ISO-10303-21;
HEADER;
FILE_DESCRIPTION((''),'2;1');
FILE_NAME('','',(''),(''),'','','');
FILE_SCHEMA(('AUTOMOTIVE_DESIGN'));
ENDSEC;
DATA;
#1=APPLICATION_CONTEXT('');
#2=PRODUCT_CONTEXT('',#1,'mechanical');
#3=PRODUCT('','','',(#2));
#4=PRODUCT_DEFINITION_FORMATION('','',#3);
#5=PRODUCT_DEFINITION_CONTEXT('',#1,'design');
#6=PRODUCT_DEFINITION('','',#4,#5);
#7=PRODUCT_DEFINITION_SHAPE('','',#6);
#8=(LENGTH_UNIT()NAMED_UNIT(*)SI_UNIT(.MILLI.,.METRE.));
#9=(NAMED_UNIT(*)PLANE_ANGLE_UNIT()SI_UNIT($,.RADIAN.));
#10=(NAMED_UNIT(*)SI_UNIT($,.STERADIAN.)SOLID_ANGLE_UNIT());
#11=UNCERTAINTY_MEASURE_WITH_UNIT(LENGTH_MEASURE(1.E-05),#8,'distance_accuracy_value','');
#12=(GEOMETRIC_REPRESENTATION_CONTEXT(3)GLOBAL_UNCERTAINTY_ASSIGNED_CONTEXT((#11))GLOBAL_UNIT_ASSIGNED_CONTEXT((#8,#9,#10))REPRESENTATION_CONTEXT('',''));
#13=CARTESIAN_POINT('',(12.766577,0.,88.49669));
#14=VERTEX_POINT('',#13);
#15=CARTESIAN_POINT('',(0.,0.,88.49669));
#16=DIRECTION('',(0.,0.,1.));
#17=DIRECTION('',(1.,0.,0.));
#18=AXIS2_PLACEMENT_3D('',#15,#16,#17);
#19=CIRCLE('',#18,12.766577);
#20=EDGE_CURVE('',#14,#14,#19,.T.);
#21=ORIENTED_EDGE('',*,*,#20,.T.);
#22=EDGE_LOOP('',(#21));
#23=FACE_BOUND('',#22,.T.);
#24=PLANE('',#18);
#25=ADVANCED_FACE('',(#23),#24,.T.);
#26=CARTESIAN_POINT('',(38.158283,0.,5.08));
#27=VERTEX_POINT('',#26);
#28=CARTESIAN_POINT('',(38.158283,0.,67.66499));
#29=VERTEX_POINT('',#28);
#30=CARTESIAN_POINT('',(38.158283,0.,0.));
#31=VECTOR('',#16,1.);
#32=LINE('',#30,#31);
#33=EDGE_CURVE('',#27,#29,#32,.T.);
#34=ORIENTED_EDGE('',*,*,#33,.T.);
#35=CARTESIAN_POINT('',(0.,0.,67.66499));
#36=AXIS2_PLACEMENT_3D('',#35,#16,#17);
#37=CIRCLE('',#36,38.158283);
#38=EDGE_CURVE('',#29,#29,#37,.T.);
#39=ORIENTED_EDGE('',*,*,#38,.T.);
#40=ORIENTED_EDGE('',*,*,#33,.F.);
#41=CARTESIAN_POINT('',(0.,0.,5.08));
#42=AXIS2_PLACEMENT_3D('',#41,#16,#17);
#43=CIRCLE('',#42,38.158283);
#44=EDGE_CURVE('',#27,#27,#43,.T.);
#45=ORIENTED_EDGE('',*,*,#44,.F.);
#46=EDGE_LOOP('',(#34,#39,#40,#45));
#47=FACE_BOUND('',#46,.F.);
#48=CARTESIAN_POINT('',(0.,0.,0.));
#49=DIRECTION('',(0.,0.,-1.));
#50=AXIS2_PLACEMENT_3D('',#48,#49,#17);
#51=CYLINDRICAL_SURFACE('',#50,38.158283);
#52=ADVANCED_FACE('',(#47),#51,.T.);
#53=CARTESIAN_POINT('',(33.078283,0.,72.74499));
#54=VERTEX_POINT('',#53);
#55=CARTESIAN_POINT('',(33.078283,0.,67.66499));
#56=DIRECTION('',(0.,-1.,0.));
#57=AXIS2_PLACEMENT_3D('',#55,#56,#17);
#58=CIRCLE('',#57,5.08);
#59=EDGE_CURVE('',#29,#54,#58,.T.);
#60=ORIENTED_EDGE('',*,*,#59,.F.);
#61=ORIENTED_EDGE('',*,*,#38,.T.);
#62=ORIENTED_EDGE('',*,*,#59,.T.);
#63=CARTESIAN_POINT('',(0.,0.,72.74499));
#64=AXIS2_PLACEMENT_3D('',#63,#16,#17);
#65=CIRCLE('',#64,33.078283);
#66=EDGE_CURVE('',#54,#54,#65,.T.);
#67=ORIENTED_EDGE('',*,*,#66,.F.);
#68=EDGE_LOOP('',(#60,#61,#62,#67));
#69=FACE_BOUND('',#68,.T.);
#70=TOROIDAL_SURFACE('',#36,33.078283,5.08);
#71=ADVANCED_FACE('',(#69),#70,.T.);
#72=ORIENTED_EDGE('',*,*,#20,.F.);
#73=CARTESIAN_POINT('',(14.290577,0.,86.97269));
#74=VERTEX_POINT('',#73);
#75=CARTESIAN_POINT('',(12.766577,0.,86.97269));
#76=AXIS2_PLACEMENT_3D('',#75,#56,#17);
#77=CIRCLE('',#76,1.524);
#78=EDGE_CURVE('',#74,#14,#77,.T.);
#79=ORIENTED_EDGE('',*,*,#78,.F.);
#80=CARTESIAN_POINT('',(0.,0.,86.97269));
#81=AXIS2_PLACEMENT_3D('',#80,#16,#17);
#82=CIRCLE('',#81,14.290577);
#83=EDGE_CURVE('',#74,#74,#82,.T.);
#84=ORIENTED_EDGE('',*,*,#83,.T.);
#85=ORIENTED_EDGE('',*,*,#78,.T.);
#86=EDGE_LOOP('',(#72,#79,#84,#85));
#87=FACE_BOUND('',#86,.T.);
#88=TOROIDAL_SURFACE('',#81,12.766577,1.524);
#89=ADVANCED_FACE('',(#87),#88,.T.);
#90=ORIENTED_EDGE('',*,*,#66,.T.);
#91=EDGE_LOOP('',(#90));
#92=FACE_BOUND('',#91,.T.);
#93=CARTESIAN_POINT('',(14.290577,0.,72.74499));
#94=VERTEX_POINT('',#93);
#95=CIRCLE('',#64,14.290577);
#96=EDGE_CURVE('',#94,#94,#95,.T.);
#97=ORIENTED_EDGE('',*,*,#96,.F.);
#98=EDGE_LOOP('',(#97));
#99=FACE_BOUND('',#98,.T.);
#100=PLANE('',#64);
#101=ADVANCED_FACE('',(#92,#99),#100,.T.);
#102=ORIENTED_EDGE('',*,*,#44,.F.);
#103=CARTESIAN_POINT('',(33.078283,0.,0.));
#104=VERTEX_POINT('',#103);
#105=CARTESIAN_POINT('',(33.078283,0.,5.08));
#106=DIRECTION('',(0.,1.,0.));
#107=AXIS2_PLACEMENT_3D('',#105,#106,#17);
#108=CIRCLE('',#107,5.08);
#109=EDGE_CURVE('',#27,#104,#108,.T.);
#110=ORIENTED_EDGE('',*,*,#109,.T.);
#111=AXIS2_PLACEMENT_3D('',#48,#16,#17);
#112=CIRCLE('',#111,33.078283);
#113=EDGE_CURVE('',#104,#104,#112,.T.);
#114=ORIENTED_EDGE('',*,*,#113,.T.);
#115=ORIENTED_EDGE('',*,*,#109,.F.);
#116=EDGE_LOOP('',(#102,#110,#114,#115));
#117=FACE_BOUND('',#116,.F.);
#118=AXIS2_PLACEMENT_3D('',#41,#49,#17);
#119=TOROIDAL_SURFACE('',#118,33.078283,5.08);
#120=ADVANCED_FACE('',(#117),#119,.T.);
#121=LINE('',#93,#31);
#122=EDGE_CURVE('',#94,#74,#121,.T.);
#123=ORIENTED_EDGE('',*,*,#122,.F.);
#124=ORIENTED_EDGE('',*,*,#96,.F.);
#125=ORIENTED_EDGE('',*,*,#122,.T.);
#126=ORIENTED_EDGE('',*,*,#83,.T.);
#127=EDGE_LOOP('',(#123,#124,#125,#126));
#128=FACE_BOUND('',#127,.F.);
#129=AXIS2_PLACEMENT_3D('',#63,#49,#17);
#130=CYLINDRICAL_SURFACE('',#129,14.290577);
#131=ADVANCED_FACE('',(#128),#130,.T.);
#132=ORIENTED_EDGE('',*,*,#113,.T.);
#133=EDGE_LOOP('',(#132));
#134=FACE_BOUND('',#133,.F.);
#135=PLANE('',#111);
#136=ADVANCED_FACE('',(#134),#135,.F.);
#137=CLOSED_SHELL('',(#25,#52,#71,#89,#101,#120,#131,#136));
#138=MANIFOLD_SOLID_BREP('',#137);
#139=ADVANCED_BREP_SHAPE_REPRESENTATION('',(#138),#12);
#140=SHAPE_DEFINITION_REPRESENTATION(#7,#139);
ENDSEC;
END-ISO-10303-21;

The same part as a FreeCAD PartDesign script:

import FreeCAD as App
import Part
import Sketcher

V = App.Vector
Q = App.Units.Quantity


def edges_at(feature, points):
    """Names of the edges that pass closest to the given points."""
    edges = feature.Shape.Edges
    near = lambda p: min(range(len(edges)), key=lambda i: edges[i].distToShape(Part.Vertex(*p))[0])
    return sorted({f"Edge{near(p) + 1}" for p in points})

doc = App.newDocument("Part")
body = doc.addObject("PartDesign::Body", "Body")

sketch1 = body.newObject("Sketcher::SketchObject", "Sketch")
sketch1.AttachmentSupport = (doc.getObject("XY_Plane"), [""])
sketch1.MapMode = "FlatFace"
sketch1.addGeometry(Part.Circle(V(0, 0, 0), V(0, 0, 1), 38), False)
sketch1.addConstraint([
    Sketcher.Constraint("Coincident", 0, 3, -1, 1),
    Sketcher.Constraint("Diameter", 0, Q("76.316566 mm")),
])
pad1 = body.newObject("PartDesign::Pad", "Pad")
pad1.Profile = sketch1
pad1.Length = 72.74499
doc.recompute()

fillet = body.newObject("PartDesign::Fillet", "Fillet")
fillet.Base = (pad1, edges_at(pad1, [(-38.158, 0, 72.745), (-38.158, 0, 0)]))
fillet.Radius = Q("0.2 in")

sketch2 = body.newObject("Sketcher::SketchObject", "Sketch001")
sketch2.AttachmentSupport = (doc.getObject("XY_Plane"), [""])
sketch2.MapMode = "FlatFace"
sketch2.AttachmentOffset = App.Placement(V(0, 0, 72.74499), App.Rotation())
sketch2.addGeometry(Part.Circle(V(0, 0, 0), V(0, 0, 1), 14), False)
sketch2.addConstraint([
    Sketcher.Constraint("Coincident", 0, 3, -1, 1),
    Sketcher.Constraint("Diameter", 0, Q("28.581154 mm")),
])
pad2 = body.newObject("PartDesign::Pad", "Pad001")
pad2.Profile = sketch2
pad2.Length = 15.7517
doc.recompute()

fillet2 = body.newObject("PartDesign::Fillet", "Fillet001")
fillet2.Base = (pad2, edges_at(pad2, [(-14.291, 0, 88.497)]))
fillet2.Radius = Q("0.06 in")

doc.recompute()
